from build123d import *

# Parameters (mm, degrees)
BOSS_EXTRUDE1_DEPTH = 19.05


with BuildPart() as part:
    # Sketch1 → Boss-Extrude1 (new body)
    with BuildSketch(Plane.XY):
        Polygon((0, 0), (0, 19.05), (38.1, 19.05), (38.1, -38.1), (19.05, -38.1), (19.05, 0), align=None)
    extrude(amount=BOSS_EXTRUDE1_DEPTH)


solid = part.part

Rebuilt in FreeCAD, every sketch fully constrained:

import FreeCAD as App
import Part
import Sketcher

V = App.Vector
Q = App.Units.Quantity

doc = App.newDocument("Part")
params = doc.addObject("Spreadsheet::Sheet", "Params")
for row, (alias, value) in enumerate([
    ("sketch1_width", "1.5 in"),
    ("pad1_length", "0.75 in"),
], start=1):
    params.set(f"A{row}", alias)
    params.set(f"B{row}", "=" + value)
    params.setAlias(f"B{row}", alias)

body = doc.addObject("PartDesign::Body", "Body")

# Sketch on XY plane
sketch1 = body.newObject("Sketcher::SketchObject", "Sketch")
sketch1.AttachmentSupport = (doc.getObject("XY_Plane"), [""])
sketch1.MapMode = "FlatFace"
sketch1.addGeometry(Part.LineSegment(V(0, 19, 0), V(0, 0, 0)), False)
sketch1.addGeometry(Part.LineSegment(V(0, 0, 0), V(19, 0, 0)), False)
sketch1.addGeometry(Part.LineSegment(V(19, 0, 0), V(19, -38, 0)), False)
sketch1.addGeometry(Part.LineSegment(V(19, -38, 0), V(38, -38, 0)), False)
sketch1.addGeometry(Part.LineSegment(V(38, -38, 0), V(38, 19, 0)), False)
sketch1.addGeometry(Part.LineSegment(V(38, 19, 0), V(0, 19, 0)), False)
sketch1.addConstraint(Sketcher.Constraint("Coincident", 0, 2, 1, 1))
sketch1.addConstraint(Sketcher.Constraint("Coincident", 1, 2, 2, 1))
sketch1.addConstraint(Sketcher.Constraint("Coincident", 2, 2, 3, 1))
sketch1.addConstraint(Sketcher.Constraint("Coincident", 3, 2, 4, 1))
sketch1.addConstraint(Sketcher.Constraint("Coincident", 4, 2, 5, 1))
sketch1.addConstraint(Sketcher.Constraint("Coincident", 5, 2, 0, 1))
sketch1.addConstraint(Sketcher.Constraint("Vertical", 0))
sketch1.addConstraint(Sketcher.Constraint("Horizontal", 1))
sketch1.addConstraint(Sketcher.Constraint("Vertical", 2))
sketch1.addConstraint(Sketcher.Constraint("Horizontal", 3))
sketch1.addConstraint(Sketcher.Constraint("Vertical", 4))
sketch1.addConstraint(Sketcher.Constraint("Horizontal", 5))
sketch1.addConstraint(Sketcher.Constraint("Coincident", 0, 2, -1, 1))
sketch1.addConstraint(Sketcher.Constraint("Equal", 1, 3))
sketch1.addConstraint(Sketcher.Constraint("Equal", 3, 0))
sketch1.addConstraint(Sketcher.Constraint("Equal", 5, 2))
sketch1.addConstraint(Sketcher.Constraint("DistanceX", 5, 2, 5, 1, Q("1.5 in")))
sketch1.setExpression("Constraints[16]", "Params.sketch1_width")
pad1 = body.newObject("PartDesign::Pad", "Pad")
pad1.Profile = sketch1
pad1.setExpression("Length", "Params.pad1_length")

doc.recompute()
